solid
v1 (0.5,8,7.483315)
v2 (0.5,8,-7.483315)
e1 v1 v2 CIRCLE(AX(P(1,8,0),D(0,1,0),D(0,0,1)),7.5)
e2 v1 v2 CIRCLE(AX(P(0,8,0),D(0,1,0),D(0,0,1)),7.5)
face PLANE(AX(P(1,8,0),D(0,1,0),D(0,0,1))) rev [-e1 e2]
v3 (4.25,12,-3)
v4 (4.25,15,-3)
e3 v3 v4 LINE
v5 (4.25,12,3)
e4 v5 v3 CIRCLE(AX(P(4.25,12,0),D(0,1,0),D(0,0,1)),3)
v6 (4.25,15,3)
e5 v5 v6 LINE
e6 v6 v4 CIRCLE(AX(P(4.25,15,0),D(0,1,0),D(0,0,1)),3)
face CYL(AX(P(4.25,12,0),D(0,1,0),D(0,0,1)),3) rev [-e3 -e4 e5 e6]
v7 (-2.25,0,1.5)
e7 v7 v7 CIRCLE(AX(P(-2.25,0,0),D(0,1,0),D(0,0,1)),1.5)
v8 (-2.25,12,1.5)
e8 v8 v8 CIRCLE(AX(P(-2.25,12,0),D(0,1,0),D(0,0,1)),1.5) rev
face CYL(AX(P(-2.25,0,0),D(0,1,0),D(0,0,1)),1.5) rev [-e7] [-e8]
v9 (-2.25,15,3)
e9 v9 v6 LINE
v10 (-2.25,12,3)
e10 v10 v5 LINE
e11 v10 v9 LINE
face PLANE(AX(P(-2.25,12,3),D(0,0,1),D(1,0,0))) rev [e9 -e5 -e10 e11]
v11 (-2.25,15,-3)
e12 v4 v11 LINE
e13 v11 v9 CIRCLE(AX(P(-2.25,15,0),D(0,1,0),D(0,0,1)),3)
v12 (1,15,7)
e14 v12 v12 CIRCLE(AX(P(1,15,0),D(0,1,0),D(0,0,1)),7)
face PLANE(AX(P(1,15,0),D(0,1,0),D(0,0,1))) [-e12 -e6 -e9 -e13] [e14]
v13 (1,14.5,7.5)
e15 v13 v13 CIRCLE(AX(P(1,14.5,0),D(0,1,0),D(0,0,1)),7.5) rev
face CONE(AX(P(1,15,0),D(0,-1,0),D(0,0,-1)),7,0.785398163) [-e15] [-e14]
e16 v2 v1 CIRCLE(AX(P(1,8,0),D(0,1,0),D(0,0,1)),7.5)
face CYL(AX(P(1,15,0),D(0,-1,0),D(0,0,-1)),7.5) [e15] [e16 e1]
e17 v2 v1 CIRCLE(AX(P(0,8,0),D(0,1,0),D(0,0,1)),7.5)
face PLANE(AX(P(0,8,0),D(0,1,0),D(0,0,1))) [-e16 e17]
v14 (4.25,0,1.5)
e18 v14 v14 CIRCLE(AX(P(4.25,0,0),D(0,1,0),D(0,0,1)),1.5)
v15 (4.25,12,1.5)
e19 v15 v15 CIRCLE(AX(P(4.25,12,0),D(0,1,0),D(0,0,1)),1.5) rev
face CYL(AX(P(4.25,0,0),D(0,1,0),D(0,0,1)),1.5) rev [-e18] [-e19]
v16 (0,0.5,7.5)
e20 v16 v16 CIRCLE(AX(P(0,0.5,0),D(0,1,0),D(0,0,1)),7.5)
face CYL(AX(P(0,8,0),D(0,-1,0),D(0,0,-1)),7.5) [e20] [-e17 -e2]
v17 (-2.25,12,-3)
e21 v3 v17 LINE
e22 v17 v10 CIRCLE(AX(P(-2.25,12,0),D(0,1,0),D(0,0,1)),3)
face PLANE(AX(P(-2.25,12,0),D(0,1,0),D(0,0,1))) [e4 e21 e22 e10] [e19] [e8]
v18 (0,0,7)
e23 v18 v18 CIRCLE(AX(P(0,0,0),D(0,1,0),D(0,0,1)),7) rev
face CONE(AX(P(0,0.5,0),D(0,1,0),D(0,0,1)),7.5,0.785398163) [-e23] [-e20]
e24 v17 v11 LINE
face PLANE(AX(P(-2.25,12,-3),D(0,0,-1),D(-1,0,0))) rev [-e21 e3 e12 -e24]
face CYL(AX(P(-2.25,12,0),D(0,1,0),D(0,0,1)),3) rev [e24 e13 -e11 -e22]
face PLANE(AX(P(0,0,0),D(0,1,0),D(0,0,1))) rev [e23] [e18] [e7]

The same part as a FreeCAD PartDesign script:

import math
import FreeCAD as App
import Part
import Sketcher
Q = App.Units.Quantity


def edges_at(feature, points):
    """Names of the edges that pass closest to the given points."""
    edges = feature.Shape.Edges
    near = lambda p: min(range(len(edges)), key=lambda i: edges[i].distToShape(Part.Vertex(*p))[0])
    return sorted({f"Edge{near(p) + 1}" for p in points})

doc = App.newDocument("Part")
params = doc.addObject("Spreadsheet::Sheet", "Params")
for row, (alias, value) in enumerate([
    ("sketch1_diameter", "15 mm"),
    ("pad1_length", "8 mm"),
    ("sketch2_diameter", "15 mm"),
    ("pad2_length", "7 mm"),
    ("sketch3_diameter", "3 mm"),
    ("sketch4_radius", "3 mm"),
    ("sketch4_width", "6.5 mm"),
    ("pocket2_length", "3 mm"),
    ("chamfer_size", "0.5 mm"),
], start=1):
    params.set(f"A{row}", alias)
    params.set(f"B{row}", "=" + value)
    params.setAlias(f"B{row}", alias)

body = doc.addObject("PartDesign::Body", "Body")

# Sketch on XZ plane
sketch1 = body.newObject("Sketcher::SketchObject", "Sketch")
sketch1.AttachmentSupport = (doc.getObject("XZ_Plane"), [""])
sketch1.MapMode = "FlatFace"
sketch1.addGeometry(Part.Circle(App.Vector(0, 0, 0), App.Vector(0, 0, 1), 7.5), False)
sketch1.addConstraint([
    Sketcher.Constraint("Coincident", 0, 3, -1, 1),
    Sketcher.Constraint("Diameter", 0, Q("15 mm")),
])
sketch1.setExpression("Constraints[1]", "Params.sketch1_diameter")
pad1 = body.newObject("PartDesign::Pad", "Pad")
pad1.Profile = sketch1
pad1.setExpression("Length", "Params.pad1_length")
pad1.Reversed = True

# Sketch on XZ plane
sketch2 = body.newObject("Sketcher::SketchObject", "Sketch001")
sketch2.AttachmentSupport = (doc.getObject("XZ_Plane"), [""])
sketch2.MapMode = "FlatFace"
sketch2.AttachmentOffset = App.Placement(App.Vector(0, 0, -8), App.Rotation())
sketch2.addGeometry(Part.Circle(App.Vector(1, 0, 0), App.Vector(0, 0, 1), 7.5), False)
sketch2.addConstraint([
    Sketcher.Constraint("PointOnObject", 0, 3, -1),
    Sketcher.Constraint("Diameter", 0, Q("15 mm")),
    Sketcher.Constraint("DistanceX", -1, 1, 0, 3, Q("1 mm")),
])
sketch2.setExpression("Constraints[1]", "Params.sketch2_diameter")
pad2 = body.newObject("PartDesign::Pad", "Pad001")
pad2.Profile = sketch2
pad2.setExpression("Length", "Params.pad2_length")
pad2.Reversed = True

# Sketch on XZ plane
sketch3 = body.newObject("Sketcher::SketchObject", "Sketch002")
sketch3.AttachmentSupport = (doc.getObject("XZ_Plane"), [""])
sketch3.MapMode = "FlatFace"
sketch3.AttachmentOffset = App.Placement(App.Vector(0, 0, -15), App.Rotation())
sketch3.addGeometry([
    Part.Circle(App.Vector(-2.25, 0, 0), App.Vector(0, 0, 1), 1.5),
    Part.Circle(App.Vector(4.25, 0, 0), App.Vector(0, 0, 1), 1.5),
], False)
sketch3.addConstraint([
    Sketcher.Constraint("Equal", 0, 1),
    Sketcher.Constraint("PointOnObject", 0, 3, -1),
    Sketcher.Constraint("PointOnObject", 1, 3, -1),
    Sketcher.Constraint("Diameter", 0, Q("3 mm")),
    Sketcher.Constraint("DistanceX", 0, 3, 1, 3, Q("6.5 mm")),
    Sketcher.Constraint("DistanceX", 0, 3, -1, 1, Q("2.25 mm")),
])
sketch3.setExpression("Constraints[3]", "Params.sketch3_diameter")
pocket1 = body.newObject("PartDesign::Pocket", "Pocket")
pocket1.Profile = sketch3
pocket1.Type = "ThroughAll"
pocket1.Reversed = True

# Sketch on XZ plane
sketch4 = body.newObject("Sketcher::SketchObject", "Sketch003")
sketch4.AttachmentSupport = (doc.getObject("XZ_Plane"), [""])
sketch4.MapMode = "FlatFace"
sketch4.AttachmentOffset = App.Placement(App.Vector(0, 0, -15), App.Rotation())
sketch4.addGeometry([
    Part.LineSegment(App.Vector(4.25, -3, 0), App.Vector(-2.25, -3, 0)),
    Part.ArcOfCircle(Part.Circle(App.Vector(-2.25, 0, 0), App.Vector(0, 0, 1), 3), math.radians(90), math.radians(270)),
    Part.LineSegment(App.Vector(-2.25, 3, 0), App.Vector(4.25, 3, 0)),
    Part.ArcOfCircle(Part.Circle(App.Vector(4.25, 0, 0), App.Vector(0, 0, 1), 3), math.radians(-90), math.radians(90)),
], False)
sketch4.addConstraint([
    Sketcher.Constraint("Tangent", 0, 2, 1, 2),
    Sketcher.Constraint("Tangent", 1, 1, 2, 1),
    Sketcher.Constraint("Tangent", 2, 2, 3, 2),
    Sketcher.Constraint("Tangent", 3, 1, 0, 1),
    Sketcher.Constraint("Horizontal", 0),
    Sketcher.Constraint("Horizontal", 2),
    Sketcher.Constraint("PointOnObject", 1, 3, -1),
    Sketcher.Constraint("Radius", 1, Q("3 mm")),
    Sketcher.Constraint("DistanceX", 0, 2, 0, 1, Q("6.5 mm")),
    Sketcher.Constraint("DistanceX", 1, 3, -1, 1, Q("2.25 mm")),
])
sketch4.setExpression("Constraints[7]", "Params.sketch4_radius")
sketch4.setExpression("Constraints[8]", "Params.sketch4_width")
pocket2 = body.newObject("PartDesign::Pocket", "Pocket001")
pocket2.Profile = sketch4
pocket2.setExpression("Length", "Params.pocket2_length")
pocket2.Reversed = True
doc.recompute()

chamfer = body.newObject("PartDesign::Chamfer", "Chamfer")
chamfer.Base = (pocket2, edges_at(pocket2, [(0, 0, -7.5), (1.5, 15, 7.483)]))
chamfer.setExpression("Size", "Params.chamfer_size")

doc.recompute()
